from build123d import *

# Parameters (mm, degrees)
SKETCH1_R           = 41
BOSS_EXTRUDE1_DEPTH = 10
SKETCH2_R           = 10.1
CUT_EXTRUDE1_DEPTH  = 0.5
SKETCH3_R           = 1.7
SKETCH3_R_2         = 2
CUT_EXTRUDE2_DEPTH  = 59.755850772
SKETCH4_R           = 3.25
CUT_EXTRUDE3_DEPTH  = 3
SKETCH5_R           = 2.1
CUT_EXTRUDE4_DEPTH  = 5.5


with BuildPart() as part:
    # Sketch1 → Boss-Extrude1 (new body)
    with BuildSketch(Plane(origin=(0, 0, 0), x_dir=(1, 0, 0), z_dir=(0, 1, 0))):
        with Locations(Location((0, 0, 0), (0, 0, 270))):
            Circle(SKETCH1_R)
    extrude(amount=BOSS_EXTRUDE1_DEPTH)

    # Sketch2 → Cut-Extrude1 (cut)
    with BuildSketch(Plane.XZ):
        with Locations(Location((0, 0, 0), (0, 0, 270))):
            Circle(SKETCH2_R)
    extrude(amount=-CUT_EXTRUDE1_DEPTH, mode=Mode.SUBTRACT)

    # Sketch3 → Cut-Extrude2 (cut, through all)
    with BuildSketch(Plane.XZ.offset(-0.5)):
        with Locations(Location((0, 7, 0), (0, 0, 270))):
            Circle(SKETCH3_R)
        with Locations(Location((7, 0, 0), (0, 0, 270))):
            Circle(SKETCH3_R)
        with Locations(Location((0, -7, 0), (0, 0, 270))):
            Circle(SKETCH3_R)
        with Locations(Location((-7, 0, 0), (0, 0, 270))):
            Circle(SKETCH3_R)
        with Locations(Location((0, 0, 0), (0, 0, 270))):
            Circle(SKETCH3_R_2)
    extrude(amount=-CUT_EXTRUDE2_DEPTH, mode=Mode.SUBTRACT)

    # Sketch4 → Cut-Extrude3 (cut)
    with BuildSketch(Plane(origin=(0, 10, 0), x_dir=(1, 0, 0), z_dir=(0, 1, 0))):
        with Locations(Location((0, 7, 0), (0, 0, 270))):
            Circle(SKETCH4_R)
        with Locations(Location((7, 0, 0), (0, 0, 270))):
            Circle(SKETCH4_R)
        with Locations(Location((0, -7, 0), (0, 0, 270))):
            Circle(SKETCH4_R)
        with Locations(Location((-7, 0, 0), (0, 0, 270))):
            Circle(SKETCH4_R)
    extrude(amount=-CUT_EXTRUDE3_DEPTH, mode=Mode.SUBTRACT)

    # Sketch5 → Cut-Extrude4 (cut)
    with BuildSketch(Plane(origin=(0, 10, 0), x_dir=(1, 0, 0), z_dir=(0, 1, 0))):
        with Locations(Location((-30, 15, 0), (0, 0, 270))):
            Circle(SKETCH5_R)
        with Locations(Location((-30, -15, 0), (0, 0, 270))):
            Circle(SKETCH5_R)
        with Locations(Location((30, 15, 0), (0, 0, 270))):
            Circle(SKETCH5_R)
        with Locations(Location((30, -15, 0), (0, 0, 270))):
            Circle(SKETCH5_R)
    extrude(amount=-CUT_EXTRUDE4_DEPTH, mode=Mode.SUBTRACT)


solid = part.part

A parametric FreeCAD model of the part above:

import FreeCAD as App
import Part
import Sketcher

V = App.Vector

doc = App.newDocument("Part")
body = doc.addObject("PartDesign::Body", "Body")

# Sketch on XZ plane
sketch1 = doc.addObject("Sketcher::SketchObject", "Sketch")
body.addObject(sketch1)
sketch1.AttachmentSupport = (doc.XZ_Plane, [""])
sketch1.MapMode = "FlatFace"
sketch1.addGeometry(Part.Circle(V(0, 0, 0), V(0, 0, 1), 41), False)
sketch1.addConstraint([
    Sketcher.Constraint("Coincident", 0, 3, -1, 1),
    Sketcher.Constraint("Diameter", 0, 82.0),
])
pad1 = doc.addObject("PartDesign::Pad", "Pad")
body.addObject(pad1)
pad1.Profile = sketch1
pad1.Length = 10
pad1.Reversed = True

# Sketch on XZ plane
sketch2 = doc.addObject("Sketcher::SketchObject", "Sketch001")
body.addObject(sketch2)
sketch2.AttachmentSupport = (doc.XZ_Plane, [""])
sketch2.MapMode = "FlatFace"
sketch2.addGeometry(Part.Circle(V(0, 0, 0), V(0, 0, 1), 10), False)
sketch2.addConstraint([
    Sketcher.Constraint("Coincident", 0, 3, -1, 1),
    Sketcher.Constraint("Diameter", 0, 20.2),
])
pocket1 = doc.addObject("PartDesign::Pocket", "Pocket")
body.addObject(pocket1)
pocket1.Profile = sketch2
pocket1.Length = 0.5

# Sketch on XZ plane
sketch3 = doc.addObject("Sketcher::SketchObject", "Sketch002")
body.addObject(sketch3)
sketch3.AttachmentSupport = (doc.XZ_Plane, [""])
sketch3.MapMode = "FlatFace"
sketch3.AttachmentOffset = App.Placement(V(0, 0, -0.5), App.Rotation())
sketch3.addGeometry([
    Part.Circle(V(0, 7, 0), V(0, 0, 1), 1.7),  # 0
    Part.Circle(V(7, 0, 0), V(0, 0, 1), 1.7),  # 1
    Part.Circle(V(0, -7, 0), V(0, 0, 1), 1.7),  # 2
    Part.Circle(V(-7, 0, 0), V(0, 0, 1), 1.7),  # 3
    Part.Circle(V(0, 0, 0), V(0, 0, 1), 2),  # 4
], False)
sketch3.addConstraint([
    Sketcher.Constraint("Coincident", 4, 3, -1, 1),
    Sketcher.Constraint("Equal", 0, 1),
    Sketcher.Constraint("Equal", 1, 2),
    Sketcher.Constraint("Equal", 2, 3),
    Sketcher.Constraint("Symmetric", 0, 3, 2, 3, -1, 1),
    Sketcher.Constraint("Symmetric", 1, 3, 3, 3, -1, 1),
    Sketcher.Constraint("PointOnObject", 0, 3, -2),
    Sketcher.Constraint("PointOnObject", 1, 3, -1),
    Sketcher.Constraint("Diameter", 4, 4.0),
    Sketcher.Constraint("Diameter", 0, 3.4),
    Sketcher.Constraint("DistanceY", -1, 1, 0, 3, 7.0),
    Sketcher.Constraint("DistanceX", -1, 1, 1, 3, 7.0),
])
pocket2 = doc.addObject("PartDesign::Pocket", "Pocket001")
body.addObject(pocket2)
pocket2.Profile = sketch3
pocket2.Type = "ThroughAll"

# Sketch on XZ plane
sketch4 = doc.addObject("Sketcher::SketchObject", "Sketch003")
body.addObject(sketch4)
sketch4.AttachmentSupport = (doc.XZ_Plane, [""])
sketch4.MapMode = "FlatFace"
sketch4.AttachmentOffset = App.Placement(V(0, 0, -10), App.Rotation())
sketch4.addGeometry([
    Part.Circle(V(0, -7, 0), V(0, 0, 1), 3.2),
    Part.Circle(V(7, 0, 0), V(0, 0, 1), 3.2),
    Part.Circle(V(0, 7, 0), V(0, 0, 1), 3.2),
    Part.Circle(V(-7, 0, 0), V(0, 0, 1), 3.2),
], False)
sketch4.addConstraint([
    Sketcher.Constraint("Equal", 0, 1),
    Sketcher.Constraint("Equal", 1, 2),
    Sketcher.Constraint("Equal", 2, 3),
    Sketcher.Constraint("Symmetric", 0, 3, 2, 3, -1, 1),
    Sketcher.Constraint("Symmetric", 1, 3, 3, 3, -1, 1),
    Sketcher.Constraint("PointOnObject", 0, 3, -2),
    Sketcher.Constraint("PointOnObject", 1, 3, -1),
    Sketcher.Constraint("Diameter", 0, 6.5),
    Sketcher.Constraint("DistanceY", 0, 3, -1, 1, 7.0),
    Sketcher.Constraint("DistanceX", -1, 1, 1, 3, 7.0),
])
pocket3 = doc.addObject("PartDesign::Pocket", "Pocket002")
body.addObject(pocket3)
pocket3.Profile = sketch4
pocket3.Length = 3
pocket3.Reversed = True

# Sketch on XZ plane
sketch5 = doc.addObject("Sketcher::SketchObject", "Sketch004")
body.addObject(sketch5)
sketch5.AttachmentSupport = (doc.XZ_Plane, [""])
sketch5.MapMode = "FlatFace"
sketch5.AttachmentOffset = App.Placement(V(0, 0, -10), App.Rotation())
sketch5.addGeometry([
    Part.Circle(V(-30, -15, 0), V(0, 0, 1), 2.1),
    Part.Circle(V(-30, 15, 0), V(0, 0, 1), 2.1),
    Part.Circle(V(30, -15, 0), V(0, 0, 1), 2.1),
    Part.Circle(V(30, 15, 0), V(0, 0, 1), 2.1),
], False)
sketch5.addConstraint([
    Sketcher.Constraint("Equal", 0, 1),
    Sketcher.Constraint("Equal", 1, 2),
    Sketcher.Constraint("Equal", 2, 3),
    Sketcher.Constraint("Symmetric", 1, 3, 2, 3, -1, 1),
    Sketcher.Constraint("Symmetric", 0, 3, 3, 3, -1, 1),
    Sketcher.Constraint("Symmetric", 0, 3, 2, 3, -2),
    Sketcher.Constraint("Diameter", 0, 4.2),
    Sketcher.Constraint("DistanceX", 0, 3, -1, 1, 30.0),
    Sketcher.Constraint("DistanceY", 0, 3, -1, 1, 15.0),
])
pocket4 = doc.addObject("PartDesign::Pocket", "Pocket003")
body.addObject(pocket4)
pocket4.Profile = sketch5
pocket4.Length = 5.5
pocket4.Reversed = True

doc.recompute()
